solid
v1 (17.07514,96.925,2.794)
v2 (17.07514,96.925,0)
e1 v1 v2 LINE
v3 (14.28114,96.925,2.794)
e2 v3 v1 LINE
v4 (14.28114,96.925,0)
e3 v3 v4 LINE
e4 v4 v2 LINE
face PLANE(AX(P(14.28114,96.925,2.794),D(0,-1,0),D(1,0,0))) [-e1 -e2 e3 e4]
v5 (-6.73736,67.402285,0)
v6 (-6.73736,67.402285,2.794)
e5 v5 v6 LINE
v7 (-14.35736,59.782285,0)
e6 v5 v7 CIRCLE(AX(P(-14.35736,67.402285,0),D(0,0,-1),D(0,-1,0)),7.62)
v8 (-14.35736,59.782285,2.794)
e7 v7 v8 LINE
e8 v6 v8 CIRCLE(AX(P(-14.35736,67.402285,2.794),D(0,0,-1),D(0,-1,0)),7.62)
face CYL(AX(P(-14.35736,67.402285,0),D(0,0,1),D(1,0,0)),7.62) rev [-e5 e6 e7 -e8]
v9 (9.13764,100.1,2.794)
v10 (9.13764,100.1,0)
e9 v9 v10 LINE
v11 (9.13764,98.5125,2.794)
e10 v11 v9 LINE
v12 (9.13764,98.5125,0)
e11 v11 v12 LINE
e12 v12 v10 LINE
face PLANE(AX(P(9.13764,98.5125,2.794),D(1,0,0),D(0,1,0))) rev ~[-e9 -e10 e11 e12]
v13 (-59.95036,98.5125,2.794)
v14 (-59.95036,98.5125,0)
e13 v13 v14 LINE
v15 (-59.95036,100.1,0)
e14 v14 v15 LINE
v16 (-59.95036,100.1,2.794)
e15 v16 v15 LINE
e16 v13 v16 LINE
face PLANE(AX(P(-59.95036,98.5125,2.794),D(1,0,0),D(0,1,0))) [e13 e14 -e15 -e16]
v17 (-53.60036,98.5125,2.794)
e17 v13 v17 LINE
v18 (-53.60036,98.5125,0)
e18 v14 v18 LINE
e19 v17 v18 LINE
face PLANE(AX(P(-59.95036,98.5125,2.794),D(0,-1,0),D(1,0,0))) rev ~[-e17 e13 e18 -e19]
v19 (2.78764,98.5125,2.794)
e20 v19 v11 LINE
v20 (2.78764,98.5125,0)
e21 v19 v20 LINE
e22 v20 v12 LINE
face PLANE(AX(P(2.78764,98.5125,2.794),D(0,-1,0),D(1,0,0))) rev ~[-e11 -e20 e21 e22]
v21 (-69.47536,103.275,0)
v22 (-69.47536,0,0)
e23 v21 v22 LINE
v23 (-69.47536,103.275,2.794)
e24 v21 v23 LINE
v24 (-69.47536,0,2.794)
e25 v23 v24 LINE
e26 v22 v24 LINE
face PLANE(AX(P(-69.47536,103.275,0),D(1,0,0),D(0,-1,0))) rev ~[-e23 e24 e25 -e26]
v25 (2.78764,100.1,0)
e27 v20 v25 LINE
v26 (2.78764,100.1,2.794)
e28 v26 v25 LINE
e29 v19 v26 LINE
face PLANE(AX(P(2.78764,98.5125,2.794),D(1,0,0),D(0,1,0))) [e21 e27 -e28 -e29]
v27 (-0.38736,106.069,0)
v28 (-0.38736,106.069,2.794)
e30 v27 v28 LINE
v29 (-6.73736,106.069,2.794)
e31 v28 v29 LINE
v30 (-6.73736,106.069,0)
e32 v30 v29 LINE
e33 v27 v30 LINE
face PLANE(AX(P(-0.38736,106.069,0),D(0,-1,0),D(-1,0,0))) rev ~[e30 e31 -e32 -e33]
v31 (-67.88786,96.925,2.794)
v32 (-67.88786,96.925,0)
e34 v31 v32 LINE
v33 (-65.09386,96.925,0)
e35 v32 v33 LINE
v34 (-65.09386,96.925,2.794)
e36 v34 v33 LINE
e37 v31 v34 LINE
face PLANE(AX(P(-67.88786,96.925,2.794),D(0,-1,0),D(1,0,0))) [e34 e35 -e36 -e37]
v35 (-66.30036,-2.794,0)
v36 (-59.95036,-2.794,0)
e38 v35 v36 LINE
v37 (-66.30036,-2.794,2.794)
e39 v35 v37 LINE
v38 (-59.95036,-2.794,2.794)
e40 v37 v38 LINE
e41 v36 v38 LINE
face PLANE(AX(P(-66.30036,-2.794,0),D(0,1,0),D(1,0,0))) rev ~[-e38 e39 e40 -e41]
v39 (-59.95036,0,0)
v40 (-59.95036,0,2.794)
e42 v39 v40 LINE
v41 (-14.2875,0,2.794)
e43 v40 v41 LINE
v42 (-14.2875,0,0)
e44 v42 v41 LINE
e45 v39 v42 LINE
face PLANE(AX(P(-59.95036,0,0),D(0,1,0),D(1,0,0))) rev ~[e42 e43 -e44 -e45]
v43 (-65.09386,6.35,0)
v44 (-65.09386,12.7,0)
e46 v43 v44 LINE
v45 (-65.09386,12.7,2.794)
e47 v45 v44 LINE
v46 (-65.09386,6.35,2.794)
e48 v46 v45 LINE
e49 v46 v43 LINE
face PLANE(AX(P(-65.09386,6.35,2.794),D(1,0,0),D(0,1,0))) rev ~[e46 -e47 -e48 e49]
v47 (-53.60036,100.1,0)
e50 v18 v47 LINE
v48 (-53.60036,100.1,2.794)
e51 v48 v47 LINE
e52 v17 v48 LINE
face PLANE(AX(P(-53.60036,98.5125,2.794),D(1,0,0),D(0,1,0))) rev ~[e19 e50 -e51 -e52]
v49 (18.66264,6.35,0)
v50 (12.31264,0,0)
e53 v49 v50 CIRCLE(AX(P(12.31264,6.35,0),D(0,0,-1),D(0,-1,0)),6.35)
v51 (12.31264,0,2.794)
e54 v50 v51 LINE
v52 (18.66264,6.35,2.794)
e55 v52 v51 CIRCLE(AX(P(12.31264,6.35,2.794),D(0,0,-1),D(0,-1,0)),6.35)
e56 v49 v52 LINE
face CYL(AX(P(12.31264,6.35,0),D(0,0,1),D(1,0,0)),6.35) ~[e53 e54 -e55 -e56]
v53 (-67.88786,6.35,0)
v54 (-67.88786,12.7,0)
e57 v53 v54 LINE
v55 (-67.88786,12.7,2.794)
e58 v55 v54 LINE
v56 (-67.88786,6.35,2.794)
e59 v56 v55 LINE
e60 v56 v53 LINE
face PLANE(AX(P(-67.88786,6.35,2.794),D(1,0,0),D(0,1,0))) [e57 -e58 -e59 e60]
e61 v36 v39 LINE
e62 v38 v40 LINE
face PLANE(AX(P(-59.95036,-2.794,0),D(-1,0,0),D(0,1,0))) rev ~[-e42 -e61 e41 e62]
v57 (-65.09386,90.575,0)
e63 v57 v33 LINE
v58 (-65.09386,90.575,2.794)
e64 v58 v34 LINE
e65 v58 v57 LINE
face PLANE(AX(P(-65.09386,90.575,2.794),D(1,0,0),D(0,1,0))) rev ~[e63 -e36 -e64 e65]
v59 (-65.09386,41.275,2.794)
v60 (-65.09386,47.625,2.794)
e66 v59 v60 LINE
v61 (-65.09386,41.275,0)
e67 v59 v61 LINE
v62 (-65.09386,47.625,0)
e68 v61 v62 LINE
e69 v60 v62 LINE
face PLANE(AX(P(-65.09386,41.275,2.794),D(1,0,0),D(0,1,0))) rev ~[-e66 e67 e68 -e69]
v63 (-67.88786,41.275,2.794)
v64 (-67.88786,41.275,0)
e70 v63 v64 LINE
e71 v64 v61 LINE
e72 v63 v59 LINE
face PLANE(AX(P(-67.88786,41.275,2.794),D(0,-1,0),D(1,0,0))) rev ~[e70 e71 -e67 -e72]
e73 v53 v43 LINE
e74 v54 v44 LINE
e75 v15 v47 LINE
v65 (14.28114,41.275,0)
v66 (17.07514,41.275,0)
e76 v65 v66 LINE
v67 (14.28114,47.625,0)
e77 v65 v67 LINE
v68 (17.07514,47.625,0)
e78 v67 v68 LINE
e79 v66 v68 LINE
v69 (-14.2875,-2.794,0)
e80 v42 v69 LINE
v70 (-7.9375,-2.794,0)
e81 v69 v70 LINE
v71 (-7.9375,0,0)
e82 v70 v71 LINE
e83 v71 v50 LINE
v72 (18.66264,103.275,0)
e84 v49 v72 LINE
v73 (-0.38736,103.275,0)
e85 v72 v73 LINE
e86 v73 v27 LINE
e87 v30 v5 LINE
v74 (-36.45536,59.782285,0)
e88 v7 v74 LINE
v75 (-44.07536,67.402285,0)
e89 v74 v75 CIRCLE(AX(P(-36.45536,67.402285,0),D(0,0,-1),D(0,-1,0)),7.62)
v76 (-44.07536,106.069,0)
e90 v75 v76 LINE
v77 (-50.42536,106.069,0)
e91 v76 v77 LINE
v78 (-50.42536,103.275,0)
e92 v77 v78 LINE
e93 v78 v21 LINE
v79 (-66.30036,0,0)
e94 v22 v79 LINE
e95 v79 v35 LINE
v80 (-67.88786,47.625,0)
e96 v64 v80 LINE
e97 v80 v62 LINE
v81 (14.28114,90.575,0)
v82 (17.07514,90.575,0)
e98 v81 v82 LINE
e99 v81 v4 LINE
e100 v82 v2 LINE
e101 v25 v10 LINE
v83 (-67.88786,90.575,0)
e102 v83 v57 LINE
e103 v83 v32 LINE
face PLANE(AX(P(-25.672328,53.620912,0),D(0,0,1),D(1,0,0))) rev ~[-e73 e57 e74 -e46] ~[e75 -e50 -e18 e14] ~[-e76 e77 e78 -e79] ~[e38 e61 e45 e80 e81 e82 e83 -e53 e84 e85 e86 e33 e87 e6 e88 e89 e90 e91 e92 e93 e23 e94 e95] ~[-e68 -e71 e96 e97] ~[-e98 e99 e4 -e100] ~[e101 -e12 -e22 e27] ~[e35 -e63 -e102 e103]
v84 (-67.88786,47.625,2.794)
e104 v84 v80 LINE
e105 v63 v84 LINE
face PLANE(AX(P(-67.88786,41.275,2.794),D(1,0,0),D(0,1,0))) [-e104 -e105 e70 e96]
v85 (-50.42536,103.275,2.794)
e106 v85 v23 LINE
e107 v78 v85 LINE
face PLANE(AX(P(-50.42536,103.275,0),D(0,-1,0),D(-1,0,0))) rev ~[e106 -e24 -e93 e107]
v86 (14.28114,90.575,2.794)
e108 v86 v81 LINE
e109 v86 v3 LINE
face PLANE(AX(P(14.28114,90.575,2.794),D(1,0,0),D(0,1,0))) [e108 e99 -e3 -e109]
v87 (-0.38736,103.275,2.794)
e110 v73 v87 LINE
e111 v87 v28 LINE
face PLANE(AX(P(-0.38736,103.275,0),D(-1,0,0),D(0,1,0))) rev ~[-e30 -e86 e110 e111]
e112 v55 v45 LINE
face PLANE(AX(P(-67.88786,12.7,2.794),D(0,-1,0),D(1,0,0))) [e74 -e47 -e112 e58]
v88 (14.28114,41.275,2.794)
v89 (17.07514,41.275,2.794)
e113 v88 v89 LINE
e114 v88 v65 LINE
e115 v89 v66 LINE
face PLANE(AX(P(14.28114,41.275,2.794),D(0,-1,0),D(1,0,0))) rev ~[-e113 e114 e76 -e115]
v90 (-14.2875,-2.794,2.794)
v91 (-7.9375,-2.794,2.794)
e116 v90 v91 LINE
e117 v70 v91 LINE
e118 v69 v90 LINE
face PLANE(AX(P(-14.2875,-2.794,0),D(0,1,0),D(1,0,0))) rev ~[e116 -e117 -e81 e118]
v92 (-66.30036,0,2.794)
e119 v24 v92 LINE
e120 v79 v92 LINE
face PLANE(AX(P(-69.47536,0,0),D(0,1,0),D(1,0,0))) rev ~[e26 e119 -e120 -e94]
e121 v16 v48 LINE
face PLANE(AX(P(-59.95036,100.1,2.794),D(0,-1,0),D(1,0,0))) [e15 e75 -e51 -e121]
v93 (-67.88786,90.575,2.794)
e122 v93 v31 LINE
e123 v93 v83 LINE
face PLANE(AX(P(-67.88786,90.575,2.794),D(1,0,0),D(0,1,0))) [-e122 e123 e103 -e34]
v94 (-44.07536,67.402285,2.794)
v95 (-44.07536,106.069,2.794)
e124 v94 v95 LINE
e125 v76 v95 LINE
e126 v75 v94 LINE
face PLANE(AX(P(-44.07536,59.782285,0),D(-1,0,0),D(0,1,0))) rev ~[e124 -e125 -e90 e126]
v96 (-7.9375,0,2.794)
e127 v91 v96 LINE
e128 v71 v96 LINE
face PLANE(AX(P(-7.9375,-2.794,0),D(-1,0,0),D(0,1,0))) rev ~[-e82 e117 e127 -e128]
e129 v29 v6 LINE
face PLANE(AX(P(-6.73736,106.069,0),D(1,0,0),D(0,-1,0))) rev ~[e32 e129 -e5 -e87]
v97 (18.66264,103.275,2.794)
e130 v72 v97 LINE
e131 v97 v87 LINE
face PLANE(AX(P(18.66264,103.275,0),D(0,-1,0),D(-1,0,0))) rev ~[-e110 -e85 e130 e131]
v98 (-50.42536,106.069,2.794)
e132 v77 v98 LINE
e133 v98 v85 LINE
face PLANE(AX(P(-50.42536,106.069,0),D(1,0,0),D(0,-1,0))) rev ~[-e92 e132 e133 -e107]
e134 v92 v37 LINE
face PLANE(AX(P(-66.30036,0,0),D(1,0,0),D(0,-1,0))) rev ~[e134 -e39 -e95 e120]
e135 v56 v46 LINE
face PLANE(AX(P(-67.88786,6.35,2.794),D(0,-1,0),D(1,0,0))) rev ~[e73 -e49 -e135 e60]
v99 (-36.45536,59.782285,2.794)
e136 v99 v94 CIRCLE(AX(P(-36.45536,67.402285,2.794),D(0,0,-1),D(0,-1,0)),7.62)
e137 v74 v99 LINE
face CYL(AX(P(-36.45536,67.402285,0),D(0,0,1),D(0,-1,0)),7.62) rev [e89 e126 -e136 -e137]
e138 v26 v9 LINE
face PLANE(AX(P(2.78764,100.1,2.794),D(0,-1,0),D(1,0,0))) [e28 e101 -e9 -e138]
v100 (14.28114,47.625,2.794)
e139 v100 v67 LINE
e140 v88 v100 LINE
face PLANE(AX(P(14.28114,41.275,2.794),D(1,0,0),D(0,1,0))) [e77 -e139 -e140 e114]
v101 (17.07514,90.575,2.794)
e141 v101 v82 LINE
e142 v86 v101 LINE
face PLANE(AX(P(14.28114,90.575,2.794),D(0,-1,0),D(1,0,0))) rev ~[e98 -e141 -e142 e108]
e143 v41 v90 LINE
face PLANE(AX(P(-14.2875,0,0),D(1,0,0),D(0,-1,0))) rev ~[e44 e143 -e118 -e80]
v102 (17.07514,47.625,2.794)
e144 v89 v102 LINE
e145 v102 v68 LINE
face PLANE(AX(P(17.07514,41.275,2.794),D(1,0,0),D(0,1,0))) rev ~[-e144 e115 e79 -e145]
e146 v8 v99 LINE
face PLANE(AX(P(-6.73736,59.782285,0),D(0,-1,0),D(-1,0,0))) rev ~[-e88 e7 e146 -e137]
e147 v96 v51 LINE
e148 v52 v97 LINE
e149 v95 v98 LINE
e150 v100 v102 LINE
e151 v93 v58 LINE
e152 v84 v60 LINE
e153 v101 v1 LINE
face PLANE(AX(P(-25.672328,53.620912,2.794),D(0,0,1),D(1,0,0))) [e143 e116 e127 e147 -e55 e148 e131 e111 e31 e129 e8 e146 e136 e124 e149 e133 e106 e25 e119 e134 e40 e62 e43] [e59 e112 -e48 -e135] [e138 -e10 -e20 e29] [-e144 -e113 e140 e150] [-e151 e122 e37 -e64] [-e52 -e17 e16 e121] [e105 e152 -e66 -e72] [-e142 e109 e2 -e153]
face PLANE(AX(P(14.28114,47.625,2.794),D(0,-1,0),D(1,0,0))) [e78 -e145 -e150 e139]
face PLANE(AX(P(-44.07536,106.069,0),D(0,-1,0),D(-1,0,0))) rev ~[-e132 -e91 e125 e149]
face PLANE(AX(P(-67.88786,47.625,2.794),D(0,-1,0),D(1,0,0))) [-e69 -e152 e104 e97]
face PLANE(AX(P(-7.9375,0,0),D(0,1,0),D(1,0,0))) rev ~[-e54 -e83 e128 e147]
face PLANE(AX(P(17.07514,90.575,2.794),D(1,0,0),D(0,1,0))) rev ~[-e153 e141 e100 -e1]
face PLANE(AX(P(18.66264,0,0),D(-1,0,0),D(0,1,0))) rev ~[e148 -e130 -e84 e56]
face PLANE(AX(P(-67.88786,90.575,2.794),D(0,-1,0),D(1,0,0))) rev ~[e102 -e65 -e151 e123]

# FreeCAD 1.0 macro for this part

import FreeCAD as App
import Part
import Sketcher
from FreeCAD import Vector
Q = App.Units.Quantity


def edges_at(feature, points):
    """Names of the edges that pass closest to the given points."""
    edges = feature.Shape.Edges
    near = lambda p: min(range(len(edges)), key=lambda i: edges[i].distToShape(Part.Vertex(*p))[0])
    return sorted({f"Edge{near(p) + 1}" for p in points})

doc = App.newDocument("Part")
body = doc.addObject("PartDesign::Body", "Body")

# Sketch on XY plane
sketch1 = body.newObject("Sketcher::SketchObject", "Sketch")
sketch1.AttachmentSupport = (doc.getObject("XY_Plane"), [""])
sketch1.MapMode = "FlatFace"
sketch1.addGeometry([
    Part.LineSegment(Vector(18.7, 103.3, 0), Vector(-0.4, 103.3, 0)),  # 0
    Part.LineSegment(Vector(-0.4, 103.3, 0), Vector(-0.4, 106.1, 0)),  # 1
    Part.LineSegment(Vector(-0.4, 106.1, 0), Vector(-6.7, 106.1, 0)),  # 2
    Part.LineSegment(Vector(-6.7, 106.1, 0), Vector(-6.7, 59.8, 0)),  # 3
    Part.LineSegment(Vector(-6.7, 59.8, 0), Vector(-44.1, 59.8, 0)),  # 4
    Part.LineSegment(Vector(-44.1, 59.8, 0), Vector(-44.1, 106.1, 0)),  # 5
    Part.LineSegment(Vector(-44.1, 106.1, 0), Vector(-50.4, 106.1, 0)),  # 6
    Part.LineSegment(Vector(-50.4, 106.1, 0), Vector(-50.4, 103.3, 0)),  # 7
    Part.LineSegment(Vector(-50.4, 103.3, 0), Vector(-69.5, 103.3, 0)),  # 8
    Part.LineSegment(Vector(-69.5, 103.3, 0), Vector(-69.5, 0, 0)),  # 9
    Part.LineSegment(Vector(-69.5, 0, 0), Vector(-66.3, 0, 0)),  # 10
    Part.LineSegment(Vector(-66.3, 0, 0), Vector(-66.3, -2.8, 0)),  # 11
    Part.LineSegment(Vector(-66.3, -2.8, 0), Vector(-60, -2.8, 0)),  # 12
    Part.LineSegment(Vector(-60, -2.8, 0), Vector(-60, 0, 0)),  # 13
    Part.LineSegment(Vector(-60, 0, 0), Vector(-14.3, 0, 0)),  # 14
    Part.LineSegment(Vector(-14.3, 0, 0), Vector(-14.3, -2.8, 0)),  # 15
    Part.LineSegment(Vector(-14.3, -2.8, 0), Vector(-7.9, -2.8, 0)),  # 16
    Part.LineSegment(Vector(-7.9, -2.8, 0), Vector(-7.9, 0, 0)),  # 17
    Part.LineSegment(Vector(-7.9, 0, 0), Vector(18.7, 0, 0)),  # 18
    Part.LineSegment(Vector(18.7, 0, 0), Vector(18.7, 103.3, 0)),  # 19
], False)
sketch1.addConstraint([
    Sketcher.Constraint("Coincident", 0, 2, 1, 1),
    Sketcher.Constraint("Coincident", 1, 2, 2, 1),
    Sketcher.Constraint("Coincident", 2, 2, 3, 1),
    Sketcher.Constraint("Coincident", 3, 2, 4, 1),
    Sketcher.Constraint("Coincident", 4, 2, 5, 1),
    Sketcher.Constraint("Coincident", 5, 2, 6, 1),
    Sketcher.Constraint("Coincident", 6, 2, 7, 1),
    Sketcher.Constraint("Coincident", 7, 2, 8, 1),
    Sketcher.Constraint("Coincident", 8, 2, 9, 1),
    Sketcher.Constraint("Coincident", 9, 2, 10, 1),
    Sketcher.Constraint("Coincident", 10, 2, 11, 1),
    Sketcher.Constraint("Coincident", 11, 2, 12, 1),
    Sketcher.Constraint("Coincident", 12, 2, 13, 1),
    Sketcher.Constraint("Coincident", 13, 2, 14, 1),
    Sketcher.Constraint("Coincident", 14, 2, 15, 1),
    Sketcher.Constraint("Coincident", 15, 2, 16, 1),
    Sketcher.Constraint("Coincident", 16, 2, 17, 1),
    Sketcher.Constraint("Coincident", 17, 2, 18, 1),
    Sketcher.Constraint("Coincident", 18, 2, 19, 1),
    Sketcher.Constraint("Coincident", 19, 2, 0, 1),
    Sketcher.Constraint("Horizontal", 0),
    Sketcher.Constraint("Vertical", 1),
    Sketcher.Constraint("Horizontal", 2),
    Sketcher.Constraint("Vertical", 3),
    Sketcher.Constraint("Horizontal", 4),
    Sketcher.Constraint("Vertical", 5),
    Sketcher.Constraint("Horizontal", 6),
    Sketcher.Constraint("Vertical", 7),
    Sketcher.Constraint("Horizontal", 8),
    Sketcher.Constraint("Vertical", 9),
    Sketcher.Constraint("Horizontal", 10),
    Sketcher.Constraint("Vertical", 11),
    Sketcher.Constraint("Horizontal", 12),
    Sketcher.Constraint("Vertical", 13),
    Sketcher.Constraint("Horizontal", 14),
    Sketcher.Constraint("Vertical", 15),
    Sketcher.Constraint("Horizontal", 16),
    Sketcher.Constraint("Vertical", 17),
    Sketcher.Constraint("Horizontal", 18),
    Sketcher.Constraint("Vertical", 19),
    Sketcher.Constraint("PointOnObject", 9, 2, -1),
    Sketcher.Constraint("PointOnObject", 13, 2, -1),
    Sketcher.Constraint("PointOnObject", 17, 2, -1),
    Sketcher.Constraint("Horizontal", 2, 2, 5, 2),
    Sketcher.Constraint("Horizontal", 0, 2, 7, 2),
    Sketcher.Constraint("Horizontal", 12, 2, 15, 2),
    Sketcher.Constraint("Equal", 2, 6),
    Sketcher.Constraint("Equal", 0, 8),
    Sketcher.Constraint("Equal", 6, 12),
    Sketcher.Constraint("Equal", 12, 16),
    Sketcher.Constraint("Equal", 7, 11),
    Sketcher.Constraint("DistanceX", 8, 2, 5, 2, Q("1 in")),
    Sketcher.Constraint("DistanceX", 0, 2, 0, 1, Q("0.75 in")),
    Sketcher.Constraint("DistanceX", 4, 2, 4, 1, Q("1.47 in")),
    Sketcher.Constraint("DistanceY", 1, 1, 1, 2, Q("0.11 in")),
    Sketcher.Constraint("DistanceX", 10, 1, 10, 2, Q("0.125 in")),
    Sketcher.Constraint("DistanceX", 14, 2, -1, 1, Q("0.5625 in")),
    Sketcher.Constraint("DistanceY", 9, 2, 9, 1, 103.275),
    Sketcher.Constraint("DistanceX", 14, 1, 14, 2, 45.66286),
    Sketcher.Constraint("DistanceY", 3, 2, 3, 1, 46.286715),
])
pad1 = body.newObject("PartDesign::Pad", "Pad")
pad1.Profile = sketch1
pad1.Length = Q("0.11 in")
doc.recompute()

fillet = body.newObject("PartDesign::Fillet", "Fillet")
fillet.Base = (pad1, edges_at(pad1, [(-44.075, 59.782, 1.397), (-6.737, 59.782, 1.397)]))
fillet.Radius = Q("0.3 in")

# Sketch on XY plane
sketch2 = body.newObject("Sketcher::SketchObject", "Sketch001")
sketch2.AttachmentSupport = (doc.getObject("XY_Plane"), [""])
sketch2.MapMode = "FlatFace"
sketch2.AttachmentOffset = App.Placement(Vector(0, 0, 0.11 * 25.4), App.Rotation())
sketch2.addGeometry([
    Part.LineSegment(Vector(-60, 100.1, 0), Vector(-60, 98.5, 0)),  # 0
    Part.LineSegment(Vector(-60, 98.5, 0), Vector(-53.6, 98.5, 0)),  # 1
    Part.LineSegment(Vector(-53.6, 98.5, 0), Vector(-53.6, 100.1, 0)),  # 2
    Part.LineSegment(Vector(-53.6, 100.1, 0), Vector(-60, 100.1, 0)),  # 3
    Part.LineSegment(Vector(2.8, 100.1, 0), Vector(2.8, 98.5, 0)),  # 4
    Part.LineSegment(Vector(2.8, 98.5, 0), Vector(9.1, 98.5, 0)),  # 5
    Part.LineSegment(Vector(9.1, 98.5, 0), Vector(9.1, 100.1, 0)),  # 6
    Part.LineSegment(Vector(9.1, 100.1, 0), Vector(2.8, 100.1, 0)),  # 7
    Part.LineSegment(Vector(14.3, 47.6, 0), Vector(14.3, 41.3, 0)),  # 8
    Part.LineSegment(Vector(14.3, 41.3, 0), Vector(17.1, 41.3, 0)),  # 9
    Part.LineSegment(Vector(17.1, 41.3, 0), Vector(17.1, 47.6, 0)),  # 10
    Part.LineSegment(Vector(17.1, 47.6, 0), Vector(14.3, 47.6, 0)),  # 11
    Part.LineSegment(Vector(14.3, 96.9, 0), Vector(14.3, 90.6, 0)),  # 12
    Part.LineSegment(Vector(14.3, 90.6, 0), Vector(17.1, 90.6, 0)),  # 13
    Part.LineSegment(Vector(17.1, 90.6, 0), Vector(17.1, 96.9, 0)),  # 14
    Part.LineSegment(Vector(17.1, 96.9, 0), Vector(14.3, 96.9, 0)),  # 15
    Part.LineSegment(Vector(-67.9, 96.9, 0), Vector(-67.9, 90.6, 0)),  # 16
    Part.LineSegment(Vector(-67.9, 90.6, 0), Vector(-65.1, 90.6, 0)),  # 17
    Part.LineSegment(Vector(-65.1, 90.6, 0), Vector(-65.1, 96.9, 0)),  # 18
    Part.LineSegment(Vector(-65.1, 96.9, 0), Vector(-67.9, 96.9, 0)),  # 19
    Part.LineSegment(Vector(-67.9, 47.6, 0), Vector(-67.9, 41.3, 0)),  # 20
    Part.LineSegment(Vector(-67.9, 41.3, 0), Vector(-65.1, 41.3, 0)),  # 21
    Part.LineSegment(Vector(-65.1, 41.3, 0), Vector(-65.1, 47.6, 0)),  # 22
    Part.LineSegment(Vector(-65.1, 47.6, 0), Vector(-67.9, 47.6, 0)),  # 23
    Part.LineSegment(Vector(-67.9, 12.7, 0), Vector(-67.9, 6.3, 0)),  # 24
    Part.LineSegment(Vector(-67.9, 6.3, 0), Vector(-65.1, 6.3, 0)),  # 25
    Part.LineSegment(Vector(-65.1, 6.3, 0), Vector(-65.1, 12.7, 0)),  # 26
    Part.LineSegment(Vector(-65.1, 12.7, 0), Vector(-67.9, 12.7, 0)),  # 27
], False)
sketch2.addConstraint([
    Sketcher.Constraint("Coincident", 0, 2, 1, 1),
    Sketcher.Constraint("Coincident", 1, 2, 2, 1),
    Sketcher.Constraint("Coincident", 2, 2, 3, 1),
    Sketcher.Constraint("Coincident", 3, 2, 0, 1),
    Sketcher.Constraint("Coincident", 4, 2, 5, 1),
    Sketcher.Constraint("Coincident", 5, 2, 6, 1),
    Sketcher.Constraint("Coincident", 6, 2, 7, 1),
    Sketcher.Constraint("Coincident", 7, 2, 4, 1),
    Sketcher.Constraint("Coincident", 8, 2, 9, 1),
    Sketcher.Constraint("Coincident", 9, 2, 10, 1),
    Sketcher.Constraint("Coincident", 10, 2, 11, 1),
    Sketcher.Constraint("Coincident", 11, 2, 8, 1),
    Sketcher.Constraint("Coincident", 12, 2, 13, 1),
    Sketcher.Constraint("Coincident", 13, 2, 14, 1),
    Sketcher.Constraint("Coincident", 14, 2, 15, 1),
    Sketcher.Constraint("Coincident", 15, 2, 12, 1),
    Sketcher.Constraint("Coincident", 16, 2, 17, 1),
    Sketcher.Constraint("Coincident", 17, 2, 18, 1),
    Sketcher.Constraint("Coincident", 18, 2, 19, 1),
    Sketcher.Constraint("Coincident", 19, 2, 16, 1),
    Sketcher.Constraint("Coincident", 20, 2, 21, 1),
    Sketcher.Constraint("Coincident", 21, 2, 22, 1),
    Sketcher.Constraint("Coincident", 22, 2, 23, 1),
    Sketcher.Constraint("Coincident", 23, 2, 20, 1),
    Sketcher.Constraint("Coincident", 24, 2, 25, 1),
    Sketcher.Constraint("Coincident", 25, 2, 26, 1),
    Sketcher.Constraint("Coincident", 26, 2, 27, 1),
    Sketcher.Constraint("Coincident", 27, 2, 24, 1),
    Sketcher.Constraint("Vertical", 0),
    Sketcher.Constraint("Horizontal", 1),
    Sketcher.Constraint("Vertical", 2),
    Sketcher.Constraint("Horizontal", 3),
    Sketcher.Constraint("Vertical", 4),
    Sketcher.Constraint("Horizontal", 5),
    Sketcher.Constraint("Vertical", 6),
    Sketcher.Constraint("Horizontal", 7),
    Sketcher.Constraint("Vertical", 8),
    Sketcher.Constraint("Horizontal", 9),
    Sketcher.Constraint("Vertical", 10),
    Sketcher.Constraint("Horizontal", 11),
    Sketcher.Constraint("Vertical", 12),
    Sketcher.Constraint("Horizontal", 13),
    Sketcher.Constraint("Vertical", 14),
    Sketcher.Constraint("Horizontal", 15),
    Sketcher.Constraint("Vertical", 16),
    Sketcher.Constraint("Horizontal", 17),
    Sketcher.Constraint("Vertical", 18),
    Sketcher.Constraint("Horizontal", 19),
    Sketcher.Constraint("Vertical", 20),
    Sketcher.Constraint("Horizontal", 21),
    Sketcher.Constraint("Vertical", 22),
    Sketcher.Constraint("Horizontal", 23),
    Sketcher.Constraint("Vertical", 24),
    Sketcher.Constraint("Horizontal", 25),
    Sketcher.Constraint("Vertical", 26),
    Sketcher.Constraint("Horizontal", 27),
    Sketcher.Constraint("Horizontal", 1, 2, 4, 2),
    Sketcher.Constraint("Horizontal", 3, 2, 6, 2),
    Sketcher.Constraint("Horizontal", 13, 2, 16, 2),
    Sketcher.Constraint("Horizontal", 15, 2, 18, 2),
    Sketcher.Constraint("Horizontal", 9, 2, 20, 2),
    Sketcher.Constraint("Horizontal", 11, 2, 22, 2),
    Sketcher.Constraint("Vertical", 11, 2, 12, 2),
    Sketcher.Constraint("Vertical", 10, 2, 13, 2),
    Sketcher.Constraint("Vertical", 19, 2, 20, 2),
    Sketcher.Constraint("Vertical", 18, 2, 21, 2),
    Sketcher.Constraint("Vertical", 23, 2, 24, 2),
    Sketcher.Constraint("Vertical", 22, 2, 25, 2),
    Sketcher.Constraint("Equal", 3, 5),
    Sketcher.Constraint("Equal", 15, 17),
    Sketcher.Constraint("Equal", 7, 8),
    Sketcher.Constraint("Equal", 10, 12),
    Sketcher.Constraint("Equal", 22, 24),
    Sketcher.Constraint("DistanceX", 1, 1, 1, 2, Q("0.25 in")),
    Sketcher.Constraint("DistanceX", 9, 1, 9, 2, Q("0.11 in")),
    Sketcher.Constraint("DistanceY", -1, 1, 26, 2, Q("0.5 in")),
    Sketcher.Constraint("DistanceY", 0, 2, 0, 1, Q("0.0625 in")),
    Sketcher.Constraint("DistanceX", 1, 2, 4, 2, Q("2.22 in")),
    Sketcher.Constraint("DistanceY", -1, 1, 8, 2, Q("1.625 in")),
    Sketcher.Constraint("DistanceX", 5, 2, 9, 2, Q("0.3125 in")),
    Sketcher.Constraint("DistanceY", 12, 2, 5, 2, Q("0.3125 in")),
    Sketcher.Constraint("DistanceX", 16, 2, 0, 2, Q("0.3125 in")),
    Sketcher.Constraint("DistanceY", -1, 1, 0, 2, 98.5125),
    Sketcher.Constraint("DistanceX", 0, 2, -1, 1, 59.95036),
])
pocket1 = body.newObject("PartDesign::Pocket", "Pocket")
pocket1.Profile = sketch2
pocket1.Type = "ThroughAll"
doc.recompute()

fillet2 = body.newObject("PartDesign::Fillet", "Fillet001")
fillet2.Base = (pocket1, edges_at(pocket1, [(18.663, 0, 1.397)]))
fillet2.Radius = Q("0.25 in")

doc.recompute()
